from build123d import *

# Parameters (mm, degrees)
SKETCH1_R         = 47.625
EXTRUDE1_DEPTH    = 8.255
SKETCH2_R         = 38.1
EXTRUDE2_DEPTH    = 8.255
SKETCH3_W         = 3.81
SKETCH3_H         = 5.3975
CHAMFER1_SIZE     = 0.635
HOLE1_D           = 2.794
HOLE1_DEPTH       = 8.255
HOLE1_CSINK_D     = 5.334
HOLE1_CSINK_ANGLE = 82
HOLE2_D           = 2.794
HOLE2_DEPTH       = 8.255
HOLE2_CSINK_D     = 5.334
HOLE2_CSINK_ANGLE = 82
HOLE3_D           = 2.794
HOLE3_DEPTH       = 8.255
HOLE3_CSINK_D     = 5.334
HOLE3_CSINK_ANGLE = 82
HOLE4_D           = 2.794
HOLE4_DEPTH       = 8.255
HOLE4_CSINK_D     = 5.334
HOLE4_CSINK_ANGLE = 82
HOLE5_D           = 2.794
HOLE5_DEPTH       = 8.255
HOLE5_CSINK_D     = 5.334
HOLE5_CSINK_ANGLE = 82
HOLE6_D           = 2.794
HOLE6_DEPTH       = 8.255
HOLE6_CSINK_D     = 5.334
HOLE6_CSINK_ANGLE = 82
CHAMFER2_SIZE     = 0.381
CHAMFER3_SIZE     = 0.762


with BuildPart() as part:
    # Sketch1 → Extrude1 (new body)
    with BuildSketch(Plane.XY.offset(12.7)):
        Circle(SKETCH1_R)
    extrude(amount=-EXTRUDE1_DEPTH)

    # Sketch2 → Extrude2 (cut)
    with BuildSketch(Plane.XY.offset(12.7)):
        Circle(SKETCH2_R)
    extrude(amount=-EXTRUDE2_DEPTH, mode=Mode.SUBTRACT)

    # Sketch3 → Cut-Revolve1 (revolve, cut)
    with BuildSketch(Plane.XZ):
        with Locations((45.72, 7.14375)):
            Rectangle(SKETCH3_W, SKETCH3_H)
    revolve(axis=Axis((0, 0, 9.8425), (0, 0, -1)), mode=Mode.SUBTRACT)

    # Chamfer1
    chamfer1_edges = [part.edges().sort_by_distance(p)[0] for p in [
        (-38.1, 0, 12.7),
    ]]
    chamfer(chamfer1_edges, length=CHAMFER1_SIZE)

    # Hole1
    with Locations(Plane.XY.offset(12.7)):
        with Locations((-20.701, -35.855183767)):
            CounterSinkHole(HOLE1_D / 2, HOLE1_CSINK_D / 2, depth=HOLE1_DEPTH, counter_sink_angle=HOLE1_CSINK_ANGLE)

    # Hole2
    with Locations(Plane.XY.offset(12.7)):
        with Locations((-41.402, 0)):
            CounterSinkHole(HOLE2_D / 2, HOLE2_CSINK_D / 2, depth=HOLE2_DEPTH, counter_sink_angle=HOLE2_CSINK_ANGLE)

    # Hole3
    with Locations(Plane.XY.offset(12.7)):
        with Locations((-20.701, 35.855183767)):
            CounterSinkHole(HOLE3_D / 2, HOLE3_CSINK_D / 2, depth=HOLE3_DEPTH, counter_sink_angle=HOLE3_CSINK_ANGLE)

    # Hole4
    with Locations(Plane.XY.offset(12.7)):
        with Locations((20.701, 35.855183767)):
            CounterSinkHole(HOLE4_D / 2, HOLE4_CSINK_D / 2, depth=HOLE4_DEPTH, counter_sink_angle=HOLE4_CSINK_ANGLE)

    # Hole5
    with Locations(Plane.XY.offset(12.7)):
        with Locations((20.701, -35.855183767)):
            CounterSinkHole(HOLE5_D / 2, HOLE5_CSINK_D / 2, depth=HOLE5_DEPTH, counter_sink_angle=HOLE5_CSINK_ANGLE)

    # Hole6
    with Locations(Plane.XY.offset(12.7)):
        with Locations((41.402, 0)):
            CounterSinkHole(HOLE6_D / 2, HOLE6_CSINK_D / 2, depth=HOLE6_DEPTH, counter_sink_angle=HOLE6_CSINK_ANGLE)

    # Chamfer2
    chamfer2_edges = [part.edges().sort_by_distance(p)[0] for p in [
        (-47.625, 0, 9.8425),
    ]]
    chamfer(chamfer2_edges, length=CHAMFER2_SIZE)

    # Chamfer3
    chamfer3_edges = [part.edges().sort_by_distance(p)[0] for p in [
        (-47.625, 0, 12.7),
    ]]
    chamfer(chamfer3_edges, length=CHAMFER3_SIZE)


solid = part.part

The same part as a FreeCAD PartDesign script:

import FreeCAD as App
import Part
import Sketcher
Q = App.Units.Quantity


def edges_at(feature, points):
    """Names of the edges that pass closest to the given points."""
    edges = feature.Shape.Edges
    near = lambda p: min(range(len(edges)), key=lambda i: edges[i].distToShape(Part.Vertex(*p))[0])
    return sorted({f"Edge{near(p) + 1}" for p in points})


def add_polygon(sketch, points):
    """Adds a closed chain of lines whose ends are joined by coincident constraints."""
    first, n = sketch.GeometryCount, len(points)
    for a, b in zip(points, points[1:] + points[:1]):
        sketch.addGeometry(Part.LineSegment(App.Vector(*a, 0), App.Vector(*b, 0)), False)
    for i in range(n):
        sketch.addConstraint(Sketcher.Constraint("Coincident", first + i, 2, first + (i + 1) % n, 1))

doc = App.newDocument("Part")
body = doc.addObject("PartDesign::Body", "Body")

# Sketch on XY plane
sketch1 = doc.addObject("Sketcher::SketchObject", "Sketch")
body.addObject(sketch1)
sketch1.AttachmentSupport = (doc.XY_Plane, [""])
sketch1.MapMode = "FlatFace"
sketch1.AttachmentOffset = App.Placement(App.Vector(0, 0, 0.5 * 25.4), App.Rotation())
sketch1.addGeometry(Part.Circle(App.Vector(0, 0, 0), App.Vector(0, 0, 1), 48), False)
sketch1.addConstraint(Sketcher.Constraint("Coincident", 0, 3, -1, 1))
sketch1.addConstraint(Sketcher.Constraint("Diameter", 0, Q("3.75 in")))
pad1 = doc.addObject("PartDesign::Pad", "Pad")
body.addObject(pad1)
pad1.Profile = sketch1
pad1.Length = Q("0.325 in")
pad1.Reversed = True

# Sketch on XY plane
sketch2 = doc.addObject("Sketcher::SketchObject", "Sketch001")
body.addObject(sketch2)
sketch2.AttachmentSupport = (doc.XY_Plane, [""])
sketch2.MapMode = "FlatFace"
sketch2.AttachmentOffset = App.Placement(App.Vector(0, 0, 0.5 * 25.4), App.Rotation())
sketch2.addGeometry(Part.Circle(App.Vector(0, 0, 0), App.Vector(0, 0, 1), 38), False)
sketch2.addConstraint(Sketcher.Constraint("Coincident", 0, 3, -1, 1))
sketch2.addConstraint(Sketcher.Constraint("Diameter", 0, Q("3 in")))
pocket1 = doc.addObject("PartDesign::Pocket", "Pocket")
body.addObject(pocket1)
pocket1.Profile = sketch2
pocket1.Length = Q("0.325 in")

# Sketch on XZ plane
sketch3 = doc.addObject("Sketcher::SketchObject", "Sketch002")
body.addObject(sketch3)
sketch3.AttachmentSupport = (doc.XZ_Plane, [""])
sketch3.MapMode = "FlatFace"
add_polygon(sketch3, [(43.8, 9.8), (43.8, 4.4), (47.6, 4.4), (47.6, 9.8)])  # lines 0-3
sketch3.addConstraint(Sketcher.Constraint("Vertical", 0))
sketch3.addConstraint(Sketcher.Constraint("Horizontal", 1))
sketch3.addConstraint(Sketcher.Constraint("Vertical", 2))
sketch3.addConstraint(Sketcher.Constraint("Horizontal", 3))
sketch3.addConstraint(Sketcher.Constraint("DistanceX", 1, 1, 1, 2, Q("0.15 in")))
sketch3.addConstraint(Sketcher.Constraint("DistanceY", 0, 2, 0, 1, Q("0.2125 in")))
sketch3.addConstraint(Sketcher.Constraint("DistanceX", -1, 1, 0, 2, Q("1.725 in")))
sketch3.addConstraint(Sketcher.Constraint("DistanceY", -1, 1, 0, 2, Q("0.175 in")))
groove = doc.addObject("PartDesign::Groove", "Groove")
body.addObject(groove)
groove.Profile = sketch3
groove.ReferenceAxis = (sketch3, ["V_Axis"])
groove.Angle = 360
doc.recompute()

chamfer = doc.addObject("PartDesign::Chamfer", "Chamfer")
body.addObject(chamfer)
chamfer.Base = (groove, edges_at(groove, [(-38.1, 0, 12.7)]))
chamfer.Size = Q("0.025 in")

# Sketch on XY plane
sketch4 = doc.addObject("Sketcher::SketchObject", "Sketch003")
body.addObject(sketch4)
sketch4.AttachmentSupport = (doc.XY_Plane, [""])
sketch4.MapMode = "FlatFace"
sketch4.AttachmentOffset = App.Placement(App.Vector(0, 0, 0.5 * 25.4), App.Rotation())
sketch4.addGeometry(Part.Circle(App.Vector(-20.7, -35.9, 0), App.Vector(0, 0, 1), 1.4), False)
sketch4.addConstraint(Sketcher.Constraint("Diameter", 0, Q("0.11 in")))
sketch4.addConstraint(Sketcher.Constraint("DistanceX", 0, 3, -1, 1, Q("0.815 in")))
sketch4.addConstraint(Sketcher.Constraint("DistanceY", 0, 3, -1, 1, 35.855184))
doc.recompute()
hole = doc.addObject("PartDesign::Hole", "Hole")
body.addObject(hole)
hole.Profile = sketch4
hole.ThreadType = "None"
hole.Diameter = Q("0.11 in")
hole.DepthType = "Dimension"
hole.Depth = Q("0.325 in")
hole.DrillPoint = "Flat"
hole.HoleCutType = "Countersink"
hole.HoleCutDiameter = Q("0.21 in")
hole.HoleCutCountersinkAngle = 82

# Sketch on XY plane
sketch5 = doc.addObject("Sketcher::SketchObject", "Sketch004")
body.addObject(sketch5)
sketch5.AttachmentSupport = (doc.XY_Plane, [""])
sketch5.MapMode = "FlatFace"
sketch5.AttachmentOffset = App.Placement(App.Vector(0, 0, 0.5 * 25.4), App.Rotation())
sketch5.addGeometry(Part.Circle(App.Vector(-41.4, 0, 0), App.Vector(0, 0, 1), 1.4), False)
sketch5.addConstraint(Sketcher.Constraint("PointOnObject", 0, 3, -1))
sketch5.addConstraint(Sketcher.Constraint("Diameter", 0, Q("0.11 in")))
sketch5.addConstraint(Sketcher.Constraint("DistanceX", 0, 3, -1, 1, Q("1.63 in")))
doc.recompute()
hole2 = doc.addObject("PartDesign::Hole", "Hole001")
body.addObject(hole2)
hole2.Profile = sketch5
hole2.ThreadType = "None"
hole2.Diameter = Q("0.11 in")
hole2.DepthType = "Dimension"
hole2.Depth = Q("0.325 in")
hole2.DrillPoint = "Flat"
hole2.HoleCutType = "Countersink"
hole2.HoleCutDiameter = Q("0.21 in")
hole2.HoleCutCountersinkAngle = 82

# Sketch on XY plane
sketch6 = doc.addObject("Sketcher::SketchObject", "Sketch005")
body.addObject(sketch6)
sketch6.AttachmentSupport = (doc.XY_Plane, [""])
sketch6.MapMode = "FlatFace"
sketch6.AttachmentOffset = App.Placement(App.Vector(0, 0, 0.5 * 25.4), App.Rotation())
sketch6.addGeometry(Part.Circle(App.Vector(-20.7, 35.9, 0), App.Vector(0, 0, 1), 1.4), False)
sketch6.addConstraint(Sketcher.Constraint("Diameter", 0, Q("0.11 in")))
sketch6.addConstraint(Sketcher.Constraint("DistanceX", 0, 3, -1, 1, Q("0.815 in")))
sketch6.addConstraint(Sketcher.Constraint("DistanceY", -1, 1, 0, 3, 35.855184))
doc.recompute()
hole3 = doc.addObject("PartDesign::Hole", "Hole002")
body.addObject(hole3)
hole3.Profile = sketch6
hole3.ThreadType = "None"
hole3.Diameter = Q("0.11 in")
hole3.DepthType = "Dimension"
hole3.Depth = Q("0.325 in")
hole3.DrillPoint = "Flat"
hole3.HoleCutType = "Countersink"
hole3.HoleCutDiameter = Q("0.21 in")
hole3.HoleCutCountersinkAngle = 82

# Sketch on XY plane
sketch7 = doc.addObject("Sketcher::SketchObject", "Sketch006")
body.addObject(sketch7)
sketch7.AttachmentSupport = (doc.XY_Plane, [""])
sketch7.MapMode = "FlatFace"
sketch7.AttachmentOffset = App.Placement(App.Vector(0, 0, 0.5 * 25.4), App.Rotation())
sketch7.addGeometry(Part.Circle(App.Vector(20.7, 35.9, 0), App.Vector(0, 0, 1), 1.4), False)
sketch7.addConstraint(Sketcher.Constraint("Diameter", 0, Q("0.11 in")))
sketch7.addConstraint(Sketcher.Constraint("DistanceX", -1, 1, 0, 3, Q("0.815 in")))
sketch7.addConstraint(Sketcher.Constraint("DistanceY", -1, 1, 0, 3, 35.855184))
doc.recompute()
hole4 = doc.addObject("PartDesign::Hole", "Hole003")
body.addObject(hole4)
hole4.Profile = sketch7
hole4.ThreadType = "None"
hole4.Diameter = Q("0.11 in")
hole4.DepthType = "Dimension"
hole4.Depth = Q("0.325 in")
hole4.DrillPoint = "Flat"
hole4.HoleCutType = "Countersink"
hole4.HoleCutDiameter = Q("0.21 in")
hole4.HoleCutCountersinkAngle = 82

# Sketch on XY plane
sketch8 = doc.addObject("Sketcher::SketchObject", "Sketch007")
body.addObject(sketch8)
sketch8.AttachmentSupport = (doc.XY_Plane, [""])
sketch8.MapMode = "FlatFace"
sketch8.AttachmentOffset = App.Placement(App.Vector(0, 0, 0.5 * 25.4), App.Rotation())
sketch8.addGeometry(Part.Circle(App.Vector(20.7, -35.9, 0), App.Vector(0, 0, 1), 1.4), False)
sketch8.addConstraint(Sketcher.Constraint("Diameter", 0, Q("0.11 in")))
sketch8.addConstraint(Sketcher.Constraint("DistanceX", -1, 1, 0, 3, Q("0.815 in")))
sketch8.addConstraint(Sketcher.Constraint("DistanceY", 0, 3, -1, 1, 35.855184))
doc.recompute()
hole5 = doc.addObject("PartDesign::Hole", "Hole004")
body.addObject(hole5)
hole5.Profile = sketch8
hole5.ThreadType = "None"
hole5.Diameter = Q("0.11 in")
hole5.DepthType = "Dimension"
hole5.Depth = Q("0.325 in")
hole5.DrillPoint = "Flat"
hole5.HoleCutType = "Countersink"
hole5.HoleCutDiameter = Q("0.21 in")
hole5.HoleCutCountersinkAngle = 82

# Sketch on XY plane
sketch9 = doc.addObject("Sketcher::SketchObject", "Sketch008")
body.addObject(sketch9)
sketch9.AttachmentSupport = (doc.XY_Plane, [""])
sketch9.MapMode = "FlatFace"
sketch9.AttachmentOffset = App.Placement(App.Vector(0, 0, 0.5 * 25.4), App.Rotation())
sketch9.addGeometry(Part.Circle(App.Vector(41.4, 0, 0), App.Vector(0, 0, 1), 1.4), False)
sketch9.addConstraint(Sketcher.Constraint("PointOnObject", 0, 3, -1))
sketch9.addConstraint(Sketcher.Constraint("Diameter", 0, Q("0.11 in")))
sketch9.addConstraint(Sketcher.Constraint("DistanceX", -1, 1, 0, 3, Q("1.63 in")))
doc.recompute()
hole6 = doc.addObject("PartDesign::Hole", "Hole005")
body.addObject(hole6)
hole6.Profile = sketch9
hole6.ThreadType = "None"
hole6.Diameter = Q("0.11 in")
hole6.DepthType = "Dimension"
hole6.Depth = Q("0.325 in")
hole6.DrillPoint = "Flat"
hole6.HoleCutType = "Countersink"
hole6.HoleCutDiameter = Q("0.21 in")
hole6.HoleCutCountersinkAngle = 82
doc.recompute()

chamfer2 = doc.addObject("PartDesign::Chamfer", "Chamfer001")
body.addObject(chamfer2)
chamfer2.Base = (hole6, edges_at(hole6, [(-47.625, 0, 9.842)]))
chamfer2.Size = Q("0.015 in")
doc.recompute()

chamfer3 = doc.addObject("PartDesign::Chamfer", "Chamfer002")
body.addObject(chamfer3)
chamfer3.Base = (chamfer2, edges_at(chamfer2, [(-47.625, 0, 12.7)]))
chamfer3.Size = Q("0.03 in")

doc.recompute()
